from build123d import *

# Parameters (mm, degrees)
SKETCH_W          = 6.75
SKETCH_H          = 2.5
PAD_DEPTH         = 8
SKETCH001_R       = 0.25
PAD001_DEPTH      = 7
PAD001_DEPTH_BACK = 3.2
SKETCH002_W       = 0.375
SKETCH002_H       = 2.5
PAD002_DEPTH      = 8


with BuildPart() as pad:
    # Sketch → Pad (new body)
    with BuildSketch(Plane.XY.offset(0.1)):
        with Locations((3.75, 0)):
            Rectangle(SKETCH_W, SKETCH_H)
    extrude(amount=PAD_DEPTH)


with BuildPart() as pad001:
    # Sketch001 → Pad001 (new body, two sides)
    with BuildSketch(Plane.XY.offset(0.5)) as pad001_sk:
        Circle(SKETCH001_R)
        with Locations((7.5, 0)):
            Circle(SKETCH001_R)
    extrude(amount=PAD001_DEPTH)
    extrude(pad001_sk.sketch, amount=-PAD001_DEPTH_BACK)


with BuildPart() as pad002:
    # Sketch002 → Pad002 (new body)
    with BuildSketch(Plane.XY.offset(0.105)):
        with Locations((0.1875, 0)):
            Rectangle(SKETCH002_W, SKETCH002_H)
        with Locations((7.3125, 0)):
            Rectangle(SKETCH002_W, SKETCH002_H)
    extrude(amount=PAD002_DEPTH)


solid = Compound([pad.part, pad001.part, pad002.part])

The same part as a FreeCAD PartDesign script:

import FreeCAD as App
import Part
import Sketcher
from FreeCAD import Vector
Q = App.Units.Quantity

doc = App.newDocument("Part")
body = doc.addObject("PartDesign::Body", "Body")

sketch1 = body.newObject("Sketcher::SketchObject", "Sketch")
sketch1.AttachmentSupport = (doc.getObject("XY_Plane"), [""])
sketch1.MapMode = "FlatFace"
sketch1.AttachmentOffset = App.Placement(Vector(0, 0, 0.1), App.Rotation())
sketch1.addGeometry([
    Part.LineSegment(Vector(0.4, 1.2, 0), Vector(0.4, -1.2, 0)),
    Part.LineSegment(Vector(0.4, -1.2, 0), Vector(7.1, -1.2, 0)),
    Part.LineSegment(Vector(7.1, -1.2, 0), Vector(7.1, 1.2, 0)),
    Part.LineSegment(Vector(7.1, 1.2, 0), Vector(0.4, 1.2, 0)),
], False)
sketch1.addConstraint([
    Sketcher.Constraint("Coincident", 0, 2, 1, 1),
    Sketcher.Constraint("Coincident", 1, 2, 2, 1),
    Sketcher.Constraint("Coincident", 2, 2, 3, 1),
    Sketcher.Constraint("Coincident", 3, 2, 0, 1),
    Sketcher.Constraint("Vertical", 0),
    Sketcher.Constraint("Horizontal", 1),
    Sketcher.Constraint("Vertical", 2),
    Sketcher.Constraint("Horizontal", 3),
    Sketcher.Constraint("DistanceY", 0, 2, 0, 1, Q("2.5 mm")),
    Sketcher.Constraint("DistanceX", 1, 1, 1, 2, Q("6.75 mm")),
    Sketcher.Constraint("DistanceY", 0, 2, -1, 1, Q("1.25 mm")),
    Sketcher.Constraint("DistanceX", -1, 1, 0, 2, Q("0.375 mm")),
])
pad1 = body.newObject("PartDesign::Pad", "Pad")
pad1.Profile = sketch1
pad1.Length = 8
body2 = doc.addObject("PartDesign::Body", "Body001")
body2.AllowCompound = True

sketch2 = body2.newObject("Sketcher::SketchObject", "Sketch001")
sketch2.AttachmentSupport = (doc.getObject("XY_Plane001"), [""])
sketch2.MapMode = "FlatFace"
sketch2.AttachmentOffset = App.Placement(Vector(0, 0, 0.5), App.Rotation())
sketch2.addGeometry([
    Part.Circle(Vector(0, 0, 0), Vector(0, 0, 1), 0.25),
    Part.Circle(Vector(7.5, 0, 0), Vector(0, 0, 1), 0.25),
], False)
sketch2.addConstraint([
    Sketcher.Constraint("Coincident", 0, 3, -1, 1),
    Sketcher.Constraint("Equal", 0, 1),
    Sketcher.Constraint("PointOnObject", 1, 3, -1),
    Sketcher.Constraint("Diameter", 0, Q("0.5 mm")),
    Sketcher.Constraint("DistanceX", -1, 1, 1, 3, Q("7.5 mm")),
])
pad2 = body2.newObject("PartDesign::Pad", "Pad001")
pad2.Profile = sketch2
pad2.Type = "TwoLengths"
pad2.Length = 7
pad2.Length2 = 3.2
body3 = doc.addObject("PartDesign::Body", "Body002")
body3.AllowCompound = True

sketch3 = body3.newObject("Sketcher::SketchObject", "Sketch002")
sketch3.AttachmentSupport = (doc.getObject("XY_Plane002"), [""])
sketch3.MapMode = "FlatFace"
sketch3.AttachmentOffset = App.Placement(Vector(0, 0, 0.105), App.Rotation())
sketch3.addGeometry([
    Part.LineSegment(Vector(0, 1.25, 0), Vector(0, -1.25, 0)),
    Part.LineSegment(Vector(0, -1.25, 0), Vector(0.38, -1.25, 0)),
    Part.LineSegment(Vector(0.38, -1.25, 0), Vector(0.38, 1.25, 0)),
    Part.LineSegment(Vector(0.38, 1.25, 0), Vector(0, 1.25, 0)),
    Part.LineSegment(Vector(7.12, 1.25, 0), Vector(7.12, -1.25, 0)),
    Part.LineSegment(Vector(7.12, -1.25, 0), Vector(7.5, -1.25, 0)),
    Part.LineSegment(Vector(7.5, -1.25, 0), Vector(7.5, 1.25, 0)),
    Part.LineSegment(Vector(7.5, 1.25, 0), Vector(7.12, 1.25, 0)),
], False)
sketch3.addConstraint([
    Sketcher.Constraint("Coincident", 0, 2, 1, 1),
    Sketcher.Constraint("Coincident", 1, 2, 2, 1),
    Sketcher.Constraint("Coincident", 2, 2, 3, 1),
    Sketcher.Constraint("Coincident", 3, 2, 0, 1),
    Sketcher.Constraint("Coincident", 4, 2, 5, 1),
    Sketcher.Constraint("Coincident", 5, 2, 6, 1),
    Sketcher.Constraint("Coincident", 6, 2, 7, 1),
    Sketcher.Constraint("Coincident", 7, 2, 4, 1),
    Sketcher.Constraint("Vertical", 0),
    Sketcher.Constraint("Horizontal", 1),
    Sketcher.Constraint("Vertical", 2),
    Sketcher.Constraint("Horizontal", 3),
    Sketcher.Constraint("Vertical", 4),
    Sketcher.Constraint("Horizontal", 5),
    Sketcher.Constraint("Vertical", 6),
    Sketcher.Constraint("Horizontal", 7),
    Sketcher.Constraint("Symmetric", 0, 2, 3, 2, -1, 1),
    Sketcher.Constraint("Horizontal", 1, 2, 4, 2),
    Sketcher.Constraint("Horizontal", 3, 2, 6, 2),
    Sketcher.Constraint("Equal", 3, 5),
    Sketcher.Constraint("DistanceY", 0, 2, 0, 1, Q("2.5 mm")),
    Sketcher.Constraint("DistanceX", -1, 1, 5, 2, Q("7.5 mm")),
    Sketcher.Constraint("DistanceX", 1, 1, 1, 2, Q("0.375 mm")),
])
pad3 = body3.newObject("PartDesign::Pad", "Pad002")
pad3.Profile = sketch3
pad3.Length = 8

doc.recompute()
